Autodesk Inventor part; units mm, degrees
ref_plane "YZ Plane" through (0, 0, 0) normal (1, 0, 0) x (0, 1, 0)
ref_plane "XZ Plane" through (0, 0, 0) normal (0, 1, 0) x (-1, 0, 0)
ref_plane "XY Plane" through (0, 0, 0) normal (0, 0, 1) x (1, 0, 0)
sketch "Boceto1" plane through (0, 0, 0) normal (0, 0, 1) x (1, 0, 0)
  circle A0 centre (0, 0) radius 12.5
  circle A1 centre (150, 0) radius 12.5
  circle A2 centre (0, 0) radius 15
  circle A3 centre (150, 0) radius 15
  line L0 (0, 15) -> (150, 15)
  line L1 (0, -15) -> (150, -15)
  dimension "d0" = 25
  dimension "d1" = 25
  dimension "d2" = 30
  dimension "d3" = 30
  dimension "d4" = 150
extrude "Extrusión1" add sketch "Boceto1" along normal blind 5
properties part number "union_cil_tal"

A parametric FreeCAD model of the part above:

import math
import FreeCAD as App
import Part
import Sketcher

doc = App.newDocument("Part")
body = doc.addObject("PartDesign::Body", "Body")

sketch1 = body.newObject("Sketcher::SketchObject", "Sketch")
sketch1.AttachmentSupport = (doc.getObject("XY_Plane"), [""])
sketch1.MapMode = "FlatFace"
sketch1.addGeometry(Part.ArcOfCircle(Part.Circle(App.Vector(0, 0, 0), App.Vector(0, 0, 1), 15), math.radians(90), math.radians(270)), False)
sketch1.addGeometry(Part.LineSegment(App.Vector(0, -15, 0), App.Vector(150, -15, 0)), False)
sketch1.addGeometry(Part.ArcOfCircle(Part.Circle(App.Vector(150, 0, 0), App.Vector(0, 0, 1), 15), math.radians(-90), math.radians(90)), False)
sketch1.addGeometry(Part.LineSegment(App.Vector(150, 15, 0), App.Vector(0, 15, 0)), False)
sketch1.addGeometry(Part.Circle(App.Vector(0, 0, 0), App.Vector(0, 0, 1), 12), False)
sketch1.addGeometry(Part.Circle(App.Vector(150, 0, 0), App.Vector(0, 0, 1), 12), False)
sketch1.addConstraint(Sketcher.Constraint("Tangent", 0, 2, 1, 1))
sketch1.addConstraint(Sketcher.Constraint("Tangent", 1, 2, 2, 1))
sketch1.addConstraint(Sketcher.Constraint("Tangent", 2, 2, 3, 1))
sketch1.addConstraint(Sketcher.Constraint("Tangent", 3, 2, 0, 1))
sketch1.addConstraint(Sketcher.Constraint("Horizontal", 1))
sketch1.addConstraint(Sketcher.Constraint("Horizontal", 3))
sketch1.addConstraint(Sketcher.Constraint("Coincident", 0, 3, -1, 1))
sketch1.addConstraint(Sketcher.Constraint("Coincident", 4, 3, -1, 1))
sketch1.addConstraint(Sketcher.Constraint("Coincident", 5, 3, 2, 3))
sketch1.addConstraint(Sketcher.Constraint("Equal", 4, 5))
sketch1.addConstraint(Sketcher.Constraint("Diameter", 4, 25.0))
sketch1.addConstraint(Sketcher.Constraint("Radius", 0, 15.0))
sketch1.addConstraint(Sketcher.Constraint("DistanceX", 1, 1, 1, 2, 150.0))
pad1 = body.newObject("PartDesign::Pad", "Pad")
pad1.Profile = sketch1
pad1.Length = 5

doc.recompute()
